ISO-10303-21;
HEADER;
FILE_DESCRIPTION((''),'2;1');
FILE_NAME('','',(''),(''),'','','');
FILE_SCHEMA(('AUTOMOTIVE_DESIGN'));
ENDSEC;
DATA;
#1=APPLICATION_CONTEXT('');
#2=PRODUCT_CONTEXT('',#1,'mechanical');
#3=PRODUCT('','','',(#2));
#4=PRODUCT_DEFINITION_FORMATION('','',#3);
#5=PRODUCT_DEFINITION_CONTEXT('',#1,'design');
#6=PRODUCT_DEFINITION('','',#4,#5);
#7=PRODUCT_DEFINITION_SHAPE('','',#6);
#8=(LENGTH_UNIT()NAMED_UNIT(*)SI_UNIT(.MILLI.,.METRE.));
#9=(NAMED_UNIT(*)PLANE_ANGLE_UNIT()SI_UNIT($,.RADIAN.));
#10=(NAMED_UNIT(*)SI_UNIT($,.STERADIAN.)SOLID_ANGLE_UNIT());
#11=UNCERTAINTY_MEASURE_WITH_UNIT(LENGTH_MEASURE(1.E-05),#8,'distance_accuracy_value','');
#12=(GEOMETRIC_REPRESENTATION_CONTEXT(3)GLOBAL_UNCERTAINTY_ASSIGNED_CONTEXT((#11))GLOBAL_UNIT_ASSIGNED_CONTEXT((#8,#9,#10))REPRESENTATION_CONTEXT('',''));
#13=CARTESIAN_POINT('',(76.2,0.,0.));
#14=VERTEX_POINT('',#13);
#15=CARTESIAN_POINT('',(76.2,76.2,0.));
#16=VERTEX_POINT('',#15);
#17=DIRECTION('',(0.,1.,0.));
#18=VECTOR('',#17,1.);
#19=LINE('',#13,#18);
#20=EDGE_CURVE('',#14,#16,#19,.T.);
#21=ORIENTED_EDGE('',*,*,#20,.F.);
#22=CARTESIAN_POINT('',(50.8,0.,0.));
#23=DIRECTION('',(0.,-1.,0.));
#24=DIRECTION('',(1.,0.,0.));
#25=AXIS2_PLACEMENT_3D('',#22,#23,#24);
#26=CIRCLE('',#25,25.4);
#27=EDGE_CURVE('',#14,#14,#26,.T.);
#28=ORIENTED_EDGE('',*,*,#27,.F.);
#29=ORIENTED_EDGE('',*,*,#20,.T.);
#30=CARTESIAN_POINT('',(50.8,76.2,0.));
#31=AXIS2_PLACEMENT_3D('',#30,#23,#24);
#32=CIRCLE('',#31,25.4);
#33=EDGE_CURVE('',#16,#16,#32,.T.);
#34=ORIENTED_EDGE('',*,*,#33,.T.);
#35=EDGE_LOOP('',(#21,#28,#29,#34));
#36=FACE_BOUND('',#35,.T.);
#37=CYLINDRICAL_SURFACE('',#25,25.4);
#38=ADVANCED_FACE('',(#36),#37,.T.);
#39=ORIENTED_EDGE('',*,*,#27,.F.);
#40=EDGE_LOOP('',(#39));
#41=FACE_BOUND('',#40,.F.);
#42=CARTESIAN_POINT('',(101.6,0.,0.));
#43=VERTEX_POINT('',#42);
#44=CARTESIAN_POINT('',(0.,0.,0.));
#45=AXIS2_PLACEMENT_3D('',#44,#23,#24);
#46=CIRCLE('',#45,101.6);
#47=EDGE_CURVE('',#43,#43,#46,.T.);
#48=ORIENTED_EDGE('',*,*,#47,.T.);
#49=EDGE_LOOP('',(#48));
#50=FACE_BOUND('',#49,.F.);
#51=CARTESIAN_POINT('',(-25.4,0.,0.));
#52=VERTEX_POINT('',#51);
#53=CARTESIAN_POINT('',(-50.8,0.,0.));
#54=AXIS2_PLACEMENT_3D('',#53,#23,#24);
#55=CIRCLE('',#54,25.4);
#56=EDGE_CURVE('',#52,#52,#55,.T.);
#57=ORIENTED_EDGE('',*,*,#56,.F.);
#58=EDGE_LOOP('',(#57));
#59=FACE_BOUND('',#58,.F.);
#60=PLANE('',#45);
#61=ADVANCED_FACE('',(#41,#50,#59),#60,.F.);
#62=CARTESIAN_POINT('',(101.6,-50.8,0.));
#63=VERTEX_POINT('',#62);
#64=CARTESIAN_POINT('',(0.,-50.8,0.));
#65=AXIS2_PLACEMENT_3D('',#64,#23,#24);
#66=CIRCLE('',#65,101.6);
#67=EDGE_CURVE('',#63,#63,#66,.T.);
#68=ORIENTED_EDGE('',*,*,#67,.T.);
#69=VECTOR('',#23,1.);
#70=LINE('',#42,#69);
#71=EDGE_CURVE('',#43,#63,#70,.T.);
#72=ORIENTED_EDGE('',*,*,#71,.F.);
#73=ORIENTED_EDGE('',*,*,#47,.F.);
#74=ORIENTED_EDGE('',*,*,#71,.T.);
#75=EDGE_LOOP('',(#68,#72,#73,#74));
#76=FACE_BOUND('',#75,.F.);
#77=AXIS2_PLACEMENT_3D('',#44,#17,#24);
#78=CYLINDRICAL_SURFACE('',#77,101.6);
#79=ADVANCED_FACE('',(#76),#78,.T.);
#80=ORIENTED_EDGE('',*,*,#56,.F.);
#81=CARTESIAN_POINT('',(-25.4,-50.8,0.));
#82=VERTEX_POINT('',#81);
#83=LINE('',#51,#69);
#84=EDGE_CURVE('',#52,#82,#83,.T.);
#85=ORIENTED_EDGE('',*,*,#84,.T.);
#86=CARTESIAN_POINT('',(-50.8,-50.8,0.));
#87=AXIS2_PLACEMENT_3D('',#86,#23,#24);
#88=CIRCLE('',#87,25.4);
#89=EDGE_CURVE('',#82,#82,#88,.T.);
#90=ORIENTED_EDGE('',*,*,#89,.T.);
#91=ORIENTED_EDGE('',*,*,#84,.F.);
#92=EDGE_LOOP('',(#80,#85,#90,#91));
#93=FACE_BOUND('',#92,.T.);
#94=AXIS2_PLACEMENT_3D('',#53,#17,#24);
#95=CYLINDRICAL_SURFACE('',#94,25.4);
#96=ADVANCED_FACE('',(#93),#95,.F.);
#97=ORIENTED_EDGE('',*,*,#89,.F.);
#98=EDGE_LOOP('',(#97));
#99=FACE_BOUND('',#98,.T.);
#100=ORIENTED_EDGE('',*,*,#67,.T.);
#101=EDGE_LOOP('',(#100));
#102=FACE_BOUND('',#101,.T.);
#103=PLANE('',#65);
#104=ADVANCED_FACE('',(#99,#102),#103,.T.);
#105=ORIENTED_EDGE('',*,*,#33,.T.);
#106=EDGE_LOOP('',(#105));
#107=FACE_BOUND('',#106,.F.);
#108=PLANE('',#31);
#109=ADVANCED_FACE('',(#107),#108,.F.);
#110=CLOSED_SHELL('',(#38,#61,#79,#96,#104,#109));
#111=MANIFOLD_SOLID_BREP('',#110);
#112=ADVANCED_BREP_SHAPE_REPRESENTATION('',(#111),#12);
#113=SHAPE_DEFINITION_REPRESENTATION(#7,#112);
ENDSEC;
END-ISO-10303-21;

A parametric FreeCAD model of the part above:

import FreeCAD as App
import Part
import Sketcher

V = App.Vector
Q = App.Units.Quantity

doc = App.newDocument("Part")
body = doc.addObject("PartDesign::Body", "Body")

# Sketch on XZ plane
sketch1 = doc.addObject("Sketcher::SketchObject", "Sketch")
body.addObject(sketch1)
sketch1.AttachmentSupport = (doc.XZ_Plane, [""])
sketch1.MapMode = "FlatFace"
sketch1.addGeometry([
    Part.Circle(V(0, 0, 0), V(0, 0, 1), 102),
    Part.Circle(V(-51, 0, 0), V(0, 0, 1), 25),
], False)
sketch1.addConstraint([
    Sketcher.Constraint("Coincident", 0, 3, -1, 1),
    Sketcher.Constraint("PointOnObject", 1, 3, -1),
    Sketcher.Constraint("Diameter", 0, Q("8 in")),
    Sketcher.Constraint("Diameter", 1, Q("2 in")),
    Sketcher.Constraint("DistanceX", 1, 3, -1, 1, Q("2 in")),
])
pad1 = doc.addObject("PartDesign::Pad", "Pad")
body.addObject(pad1)
pad1.Profile = sketch1
pad1.Length = Q("2 in")

# Sketch on XZ plane
sketch2 = doc.addObject("Sketcher::SketchObject", "Sketch001")
body.addObject(sketch2)
sketch2.AttachmentSupport = (doc.XZ_Plane, [""])
sketch2.MapMode = "FlatFace"
sketch2.addGeometry(Part.Circle(V(51, 0, 0), V(0, 0, 1), 25), False)
sketch2.addConstraint([
    Sketcher.Constraint("PointOnObject", 0, 3, -1),
    Sketcher.Constraint("Diameter", 0, Q("2 in")),
    Sketcher.Constraint("DistanceX", -1, 1, 0, 3, Q("2 in")),
])
pad2 = doc.addObject("PartDesign::Pad", "Pad001")
body.addObject(pad2)
pad2.Profile = sketch2
pad2.Length = Q("3 in")
pad2.Reversed = True

doc.recompute()
